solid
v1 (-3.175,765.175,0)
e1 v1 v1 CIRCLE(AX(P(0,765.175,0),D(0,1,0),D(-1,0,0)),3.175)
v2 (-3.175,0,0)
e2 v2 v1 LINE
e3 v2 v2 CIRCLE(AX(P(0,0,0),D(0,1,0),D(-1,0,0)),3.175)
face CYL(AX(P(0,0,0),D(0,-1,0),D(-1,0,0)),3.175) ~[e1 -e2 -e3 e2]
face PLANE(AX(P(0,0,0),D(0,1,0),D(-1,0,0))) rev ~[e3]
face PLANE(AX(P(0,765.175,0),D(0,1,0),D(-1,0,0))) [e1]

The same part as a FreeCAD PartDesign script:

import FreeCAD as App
import Part
import Sketcher
Q = App.Units.Quantity

doc = App.newDocument("Part")
params = doc.addObject("Spreadsheet::Sheet", "Params")
for row, (alias, value) in enumerate([
    ("sketch1_diameter", "0.25 in"),
    ("pad1_length", "30.125 in"),
], start=1):
    params.set(f"A{row}", alias)
    params.set(f"B{row}", "=" + value)
    params.setAlias(f"B{row}", alias)

body = doc.addObject("PartDesign::Body", "Body")

sketch1 = body.newObject("Sketcher::SketchObject", "Sketch")
sketch1.AttachmentSupport = (doc.getObject("XZ_Plane"), [""])
sketch1.MapMode = "FlatFace"
sketch1.addGeometry(Part.Circle(App.Vector(0, 0, 0), App.Vector(0, 0, 1), 3.175), False)
sketch1.addConstraint(Sketcher.Constraint("Coincident", 0, 3, -1, 1))
sketch1.addConstraint(Sketcher.Constraint("Diameter", 0, Q("0.25 in")))
sketch1.setExpression("Constraints[1]", "Params.sketch1_diameter")
pad1 = body.newObject("PartDesign::Pad", "Pad")
pad1.Profile = sketch1
pad1.setExpression("Length", "Params.pad1_length")
pad1.Reversed = True

doc.recompute()
